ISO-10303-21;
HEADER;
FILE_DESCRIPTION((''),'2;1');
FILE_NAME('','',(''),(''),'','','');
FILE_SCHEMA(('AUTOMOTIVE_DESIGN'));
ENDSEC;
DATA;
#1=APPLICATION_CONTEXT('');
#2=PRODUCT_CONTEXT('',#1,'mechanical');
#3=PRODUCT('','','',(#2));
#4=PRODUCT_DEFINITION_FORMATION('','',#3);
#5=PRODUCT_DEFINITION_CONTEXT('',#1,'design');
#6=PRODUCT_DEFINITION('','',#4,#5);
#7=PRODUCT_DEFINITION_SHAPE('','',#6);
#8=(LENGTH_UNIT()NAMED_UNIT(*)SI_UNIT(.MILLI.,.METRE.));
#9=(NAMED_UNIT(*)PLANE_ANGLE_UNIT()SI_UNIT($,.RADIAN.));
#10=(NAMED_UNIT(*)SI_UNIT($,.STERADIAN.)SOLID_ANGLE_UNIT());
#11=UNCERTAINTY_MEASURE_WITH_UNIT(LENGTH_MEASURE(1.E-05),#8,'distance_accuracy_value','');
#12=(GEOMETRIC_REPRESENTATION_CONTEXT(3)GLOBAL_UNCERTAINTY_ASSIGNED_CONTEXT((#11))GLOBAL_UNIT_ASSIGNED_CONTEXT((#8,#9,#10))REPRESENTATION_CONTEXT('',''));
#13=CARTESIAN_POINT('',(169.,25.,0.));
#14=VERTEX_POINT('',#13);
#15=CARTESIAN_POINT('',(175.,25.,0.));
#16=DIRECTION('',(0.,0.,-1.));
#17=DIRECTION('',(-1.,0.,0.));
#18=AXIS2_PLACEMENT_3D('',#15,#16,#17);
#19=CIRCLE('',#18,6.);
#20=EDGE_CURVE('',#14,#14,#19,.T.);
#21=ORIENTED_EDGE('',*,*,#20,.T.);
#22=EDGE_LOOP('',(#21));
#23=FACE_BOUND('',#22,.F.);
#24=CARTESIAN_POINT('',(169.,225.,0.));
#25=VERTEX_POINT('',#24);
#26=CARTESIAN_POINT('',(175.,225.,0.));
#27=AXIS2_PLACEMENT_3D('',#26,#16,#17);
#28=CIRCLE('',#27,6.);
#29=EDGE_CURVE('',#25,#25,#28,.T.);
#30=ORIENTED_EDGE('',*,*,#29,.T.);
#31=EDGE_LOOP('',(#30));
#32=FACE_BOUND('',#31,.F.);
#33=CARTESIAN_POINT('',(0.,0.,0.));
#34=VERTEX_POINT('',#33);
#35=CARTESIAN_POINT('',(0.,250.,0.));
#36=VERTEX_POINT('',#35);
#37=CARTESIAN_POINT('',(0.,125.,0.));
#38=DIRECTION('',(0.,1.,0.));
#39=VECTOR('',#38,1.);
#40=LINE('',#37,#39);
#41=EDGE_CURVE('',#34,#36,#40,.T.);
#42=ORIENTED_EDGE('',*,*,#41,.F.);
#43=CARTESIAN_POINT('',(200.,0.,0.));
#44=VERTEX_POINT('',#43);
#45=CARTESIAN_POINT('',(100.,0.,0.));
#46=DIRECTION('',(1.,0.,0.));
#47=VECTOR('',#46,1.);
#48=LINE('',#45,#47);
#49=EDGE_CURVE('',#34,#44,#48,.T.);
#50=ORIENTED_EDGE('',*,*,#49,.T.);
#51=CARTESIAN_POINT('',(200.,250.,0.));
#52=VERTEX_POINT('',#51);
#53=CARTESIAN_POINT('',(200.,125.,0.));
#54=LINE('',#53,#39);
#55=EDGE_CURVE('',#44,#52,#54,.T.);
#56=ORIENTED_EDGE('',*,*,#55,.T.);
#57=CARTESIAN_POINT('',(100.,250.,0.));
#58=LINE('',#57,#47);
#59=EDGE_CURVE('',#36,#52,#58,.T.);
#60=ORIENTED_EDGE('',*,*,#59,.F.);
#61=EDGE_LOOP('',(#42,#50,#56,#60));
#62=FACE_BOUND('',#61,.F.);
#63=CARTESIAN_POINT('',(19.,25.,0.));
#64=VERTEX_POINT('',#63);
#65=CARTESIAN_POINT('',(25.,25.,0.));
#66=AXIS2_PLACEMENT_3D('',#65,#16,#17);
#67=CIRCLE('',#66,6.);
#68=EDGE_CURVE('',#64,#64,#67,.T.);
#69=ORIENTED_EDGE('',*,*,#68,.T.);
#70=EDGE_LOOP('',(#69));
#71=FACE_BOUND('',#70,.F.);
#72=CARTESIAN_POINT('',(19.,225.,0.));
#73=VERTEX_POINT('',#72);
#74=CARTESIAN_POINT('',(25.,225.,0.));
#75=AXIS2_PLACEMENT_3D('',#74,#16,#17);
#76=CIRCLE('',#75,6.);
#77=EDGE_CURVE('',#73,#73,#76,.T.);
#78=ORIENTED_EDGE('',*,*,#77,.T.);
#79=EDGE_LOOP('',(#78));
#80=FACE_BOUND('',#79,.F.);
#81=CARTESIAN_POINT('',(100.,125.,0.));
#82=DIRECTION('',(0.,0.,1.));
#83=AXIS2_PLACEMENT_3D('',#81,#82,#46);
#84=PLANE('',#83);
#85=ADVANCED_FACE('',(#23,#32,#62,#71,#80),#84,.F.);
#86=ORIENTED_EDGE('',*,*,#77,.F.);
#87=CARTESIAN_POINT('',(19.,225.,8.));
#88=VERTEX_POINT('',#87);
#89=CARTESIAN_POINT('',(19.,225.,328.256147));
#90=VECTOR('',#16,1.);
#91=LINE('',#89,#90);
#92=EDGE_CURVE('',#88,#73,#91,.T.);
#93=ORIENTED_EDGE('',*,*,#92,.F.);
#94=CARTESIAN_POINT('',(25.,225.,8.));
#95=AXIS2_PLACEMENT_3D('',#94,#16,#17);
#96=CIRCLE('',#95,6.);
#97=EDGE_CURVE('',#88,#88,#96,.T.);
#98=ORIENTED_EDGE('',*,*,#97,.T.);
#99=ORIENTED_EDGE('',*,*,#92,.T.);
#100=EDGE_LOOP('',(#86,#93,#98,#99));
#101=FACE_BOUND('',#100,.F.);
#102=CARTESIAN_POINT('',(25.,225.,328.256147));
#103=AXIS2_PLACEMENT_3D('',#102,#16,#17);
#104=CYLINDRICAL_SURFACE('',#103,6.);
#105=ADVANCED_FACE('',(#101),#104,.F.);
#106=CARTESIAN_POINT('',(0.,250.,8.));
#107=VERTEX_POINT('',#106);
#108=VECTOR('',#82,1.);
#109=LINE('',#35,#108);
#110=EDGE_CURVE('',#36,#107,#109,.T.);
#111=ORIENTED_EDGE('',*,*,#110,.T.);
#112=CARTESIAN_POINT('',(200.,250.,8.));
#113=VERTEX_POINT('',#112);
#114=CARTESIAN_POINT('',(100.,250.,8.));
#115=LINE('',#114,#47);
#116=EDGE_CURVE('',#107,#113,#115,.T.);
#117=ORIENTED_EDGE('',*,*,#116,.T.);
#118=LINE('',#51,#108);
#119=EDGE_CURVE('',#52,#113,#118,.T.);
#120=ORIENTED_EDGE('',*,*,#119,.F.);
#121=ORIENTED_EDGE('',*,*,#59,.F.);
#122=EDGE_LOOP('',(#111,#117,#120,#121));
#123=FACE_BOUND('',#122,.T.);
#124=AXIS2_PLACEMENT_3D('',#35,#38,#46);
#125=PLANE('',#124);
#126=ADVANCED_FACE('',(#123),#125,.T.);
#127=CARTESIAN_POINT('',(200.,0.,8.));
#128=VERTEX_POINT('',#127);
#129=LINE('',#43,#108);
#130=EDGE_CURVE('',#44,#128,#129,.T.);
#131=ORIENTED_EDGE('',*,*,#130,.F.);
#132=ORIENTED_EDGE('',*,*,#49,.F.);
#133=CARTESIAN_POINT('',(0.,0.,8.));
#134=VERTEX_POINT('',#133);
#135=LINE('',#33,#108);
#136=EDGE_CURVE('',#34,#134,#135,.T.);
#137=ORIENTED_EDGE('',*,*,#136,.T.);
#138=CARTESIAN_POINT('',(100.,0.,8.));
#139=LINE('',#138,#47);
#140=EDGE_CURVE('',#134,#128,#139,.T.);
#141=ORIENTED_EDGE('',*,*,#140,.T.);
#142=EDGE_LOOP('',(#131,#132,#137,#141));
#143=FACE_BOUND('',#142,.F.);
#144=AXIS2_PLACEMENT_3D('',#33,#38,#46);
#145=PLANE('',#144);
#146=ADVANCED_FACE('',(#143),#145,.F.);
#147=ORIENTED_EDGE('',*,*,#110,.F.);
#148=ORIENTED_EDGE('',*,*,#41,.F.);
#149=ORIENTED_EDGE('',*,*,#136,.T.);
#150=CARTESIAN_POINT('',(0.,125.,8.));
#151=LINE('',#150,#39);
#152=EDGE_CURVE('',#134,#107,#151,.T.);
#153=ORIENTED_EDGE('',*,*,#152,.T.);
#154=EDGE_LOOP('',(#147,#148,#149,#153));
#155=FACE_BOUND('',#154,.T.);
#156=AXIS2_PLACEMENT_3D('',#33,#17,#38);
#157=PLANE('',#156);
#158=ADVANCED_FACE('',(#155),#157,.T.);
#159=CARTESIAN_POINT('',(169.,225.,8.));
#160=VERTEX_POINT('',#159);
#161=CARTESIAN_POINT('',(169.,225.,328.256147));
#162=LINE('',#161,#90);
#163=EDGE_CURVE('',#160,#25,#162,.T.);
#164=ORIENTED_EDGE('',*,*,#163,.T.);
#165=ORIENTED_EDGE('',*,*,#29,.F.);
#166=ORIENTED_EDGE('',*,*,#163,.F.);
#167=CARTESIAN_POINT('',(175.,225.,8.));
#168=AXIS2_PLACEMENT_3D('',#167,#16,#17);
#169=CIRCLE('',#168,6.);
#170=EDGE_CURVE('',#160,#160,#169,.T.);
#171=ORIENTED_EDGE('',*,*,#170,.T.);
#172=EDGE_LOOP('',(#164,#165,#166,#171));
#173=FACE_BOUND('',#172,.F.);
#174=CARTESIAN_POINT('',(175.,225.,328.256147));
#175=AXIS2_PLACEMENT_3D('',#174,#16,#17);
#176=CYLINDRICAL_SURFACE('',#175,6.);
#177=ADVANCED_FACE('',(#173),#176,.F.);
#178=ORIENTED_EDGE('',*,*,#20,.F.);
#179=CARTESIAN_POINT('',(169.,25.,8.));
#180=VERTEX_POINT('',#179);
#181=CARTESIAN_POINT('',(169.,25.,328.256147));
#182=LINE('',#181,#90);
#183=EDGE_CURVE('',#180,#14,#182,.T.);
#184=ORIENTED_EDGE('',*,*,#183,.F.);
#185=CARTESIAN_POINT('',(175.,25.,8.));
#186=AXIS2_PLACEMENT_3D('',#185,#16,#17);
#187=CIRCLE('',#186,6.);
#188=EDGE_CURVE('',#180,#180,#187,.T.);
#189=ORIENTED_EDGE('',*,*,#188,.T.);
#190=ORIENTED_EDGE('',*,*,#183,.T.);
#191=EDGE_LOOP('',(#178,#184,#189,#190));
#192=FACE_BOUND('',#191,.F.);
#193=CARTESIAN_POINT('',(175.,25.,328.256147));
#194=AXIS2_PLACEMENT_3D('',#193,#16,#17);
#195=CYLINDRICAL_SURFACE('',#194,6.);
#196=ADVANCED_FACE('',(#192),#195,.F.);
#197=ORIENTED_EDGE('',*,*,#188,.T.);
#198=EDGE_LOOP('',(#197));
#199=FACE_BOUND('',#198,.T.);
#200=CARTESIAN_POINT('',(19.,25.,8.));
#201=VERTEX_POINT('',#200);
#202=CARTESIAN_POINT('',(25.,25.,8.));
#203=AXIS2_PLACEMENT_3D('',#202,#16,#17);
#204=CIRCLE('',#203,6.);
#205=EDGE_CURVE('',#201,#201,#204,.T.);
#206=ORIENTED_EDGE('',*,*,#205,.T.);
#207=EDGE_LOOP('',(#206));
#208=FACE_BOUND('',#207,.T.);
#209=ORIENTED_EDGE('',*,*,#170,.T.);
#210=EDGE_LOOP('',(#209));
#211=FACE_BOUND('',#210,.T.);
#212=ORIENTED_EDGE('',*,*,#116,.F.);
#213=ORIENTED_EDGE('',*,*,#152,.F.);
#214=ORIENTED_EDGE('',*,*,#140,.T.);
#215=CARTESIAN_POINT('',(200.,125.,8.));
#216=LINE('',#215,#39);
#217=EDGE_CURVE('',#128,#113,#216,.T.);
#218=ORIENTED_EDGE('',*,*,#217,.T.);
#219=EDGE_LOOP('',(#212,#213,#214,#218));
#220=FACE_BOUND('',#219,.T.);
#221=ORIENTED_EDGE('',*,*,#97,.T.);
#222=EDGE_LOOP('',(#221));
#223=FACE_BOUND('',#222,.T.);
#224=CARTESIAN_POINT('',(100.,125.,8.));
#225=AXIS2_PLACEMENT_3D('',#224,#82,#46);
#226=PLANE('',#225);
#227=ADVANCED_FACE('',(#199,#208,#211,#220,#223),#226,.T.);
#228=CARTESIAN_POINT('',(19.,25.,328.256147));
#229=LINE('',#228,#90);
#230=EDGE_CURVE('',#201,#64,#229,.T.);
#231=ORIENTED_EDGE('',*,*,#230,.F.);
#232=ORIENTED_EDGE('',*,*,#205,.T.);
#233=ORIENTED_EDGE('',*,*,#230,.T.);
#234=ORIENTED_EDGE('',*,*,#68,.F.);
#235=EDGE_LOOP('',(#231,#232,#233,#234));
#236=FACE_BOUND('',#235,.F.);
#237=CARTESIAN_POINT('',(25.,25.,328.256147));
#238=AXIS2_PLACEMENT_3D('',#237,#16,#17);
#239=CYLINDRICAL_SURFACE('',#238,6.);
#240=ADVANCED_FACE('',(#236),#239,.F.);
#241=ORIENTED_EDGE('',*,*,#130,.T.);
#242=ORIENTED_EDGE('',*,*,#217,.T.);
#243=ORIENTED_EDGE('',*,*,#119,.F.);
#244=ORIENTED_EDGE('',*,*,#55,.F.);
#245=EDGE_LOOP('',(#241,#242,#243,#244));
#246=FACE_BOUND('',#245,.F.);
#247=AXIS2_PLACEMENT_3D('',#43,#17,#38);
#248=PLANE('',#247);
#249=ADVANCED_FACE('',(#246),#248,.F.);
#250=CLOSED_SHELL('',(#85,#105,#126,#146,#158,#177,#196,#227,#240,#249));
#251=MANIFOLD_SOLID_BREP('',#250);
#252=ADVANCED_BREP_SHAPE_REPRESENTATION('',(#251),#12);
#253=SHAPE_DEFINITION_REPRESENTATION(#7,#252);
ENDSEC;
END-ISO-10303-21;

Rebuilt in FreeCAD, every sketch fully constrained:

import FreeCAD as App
import Part
import Sketcher
from FreeCAD import Vector


def add_polygon(sketch, points):
    """Adds a closed chain of lines whose ends are joined by coincident constraints."""
    first, n = sketch.GeometryCount, len(points)
    for a, b in zip(points, points[1:] + points[:1]):
        sketch.addGeometry(Part.LineSegment(App.Vector(*a, 0), App.Vector(*b, 0)), False)
    for i in range(n):
        sketch.addConstraint(Sketcher.Constraint("Coincident", first + i, 2, first + (i + 1) % n, 1))

doc = App.newDocument("Part")
body = doc.addObject("PartDesign::Body", "Body")

# Sketch on XY plane
sketch1 = body.newObject("Sketcher::SketchObject", "Sketch")
sketch1.AttachmentSupport = (doc.getObject("XY_Plane"), [""])
sketch1.MapMode = "FlatFace"
add_polygon(sketch1, [(0, 250), (0, 0), (200, 0), (200, 250)])  # lines 0-3
sketch1.addConstraint(Sketcher.Constraint("Vertical", 0))
sketch1.addConstraint(Sketcher.Constraint("Horizontal", 1))
sketch1.addConstraint(Sketcher.Constraint("Vertical", 2))
sketch1.addConstraint(Sketcher.Constraint("Horizontal", 3))
sketch1.addConstraint(Sketcher.Constraint("Coincident", 0, 2, -1, 1))
sketch1.addConstraint(Sketcher.Constraint("DistanceX", 1, 1, 1, 2, 200.0))
sketch1.addConstraint(Sketcher.Constraint("DistanceY", 0, 2, 0, 1, 250.0))
pad1 = body.newObject("PartDesign::Pad", "Pad")
pad1.Profile = sketch1
pad1.Length = 8

# Sketch on XY plane
sketch2 = body.newObject("Sketcher::SketchObject", "Sketch001")
sketch2.AttachmentSupport = (doc.getObject("XY_Plane"), [""])
sketch2.MapMode = "FlatFace"
sketch2.AttachmentOffset = App.Placement(Vector(0, 0, 8), App.Rotation())
sketch2.addGeometry(Part.Circle(Vector(25, 225, 0), Vector(0, 0, 1), 6), False)
sketch2.addGeometry(Part.Circle(Vector(25, 25, 0), Vector(0, 0, 1), 6), False)
sketch2.addGeometry(Part.Circle(Vector(175, 225, 0), Vector(0, 0, 1), 6), False)
sketch2.addGeometry(Part.Circle(Vector(175, 225, 0), Vector(0, 0, 1), 6), False)
sketch2.addGeometry(Part.Circle(Vector(175, 25, 0), Vector(0, 0, 1), 6), False)
sketch2.addConstraint(Sketcher.Constraint("Coincident", 3, 3, 2, 3))
sketch2.addConstraint(Sketcher.Constraint("Equal", 0, 1))
sketch2.addConstraint(Sketcher.Constraint("Equal", 1, 2))
sketch2.addConstraint(Sketcher.Constraint("Equal", 2, 3))
sketch2.addConstraint(Sketcher.Constraint("Equal", 3, 4))
sketch2.addConstraint(Sketcher.Constraint("Horizontal", 0, 3, 2, 3))
sketch2.addConstraint(Sketcher.Constraint("Horizontal", 1, 3, 4, 3))
sketch2.addConstraint(Sketcher.Constraint("Vertical", 0, 3, 1, 3))
sketch2.addConstraint(Sketcher.Constraint("Vertical", 3, 3, 4, 3))
sketch2.addConstraint(Sketcher.Constraint("Diameter", 0, 12.0))
sketch2.addConstraint(Sketcher.Constraint("DistanceX", -1, 1, 0, 3, 25.0))
sketch2.addConstraint(Sketcher.Constraint("DistanceY", -1, 1, 0, 3, 225.0))
sketch2.addConstraint(Sketcher.Constraint("DistanceY", -1, 1, 1, 3, 25.0))
sketch2.addConstraint(Sketcher.Constraint("DistanceX", -1, 1, 2, 3, 175.0))
doc.recompute()
hole = body.newObject("PartDesign::Hole", "Hole")
hole.Profile = sketch2
hole.ThreadType = "None"
hole.Diameter = 12
hole.DepthType = "ThroughAll"

doc.recompute()
